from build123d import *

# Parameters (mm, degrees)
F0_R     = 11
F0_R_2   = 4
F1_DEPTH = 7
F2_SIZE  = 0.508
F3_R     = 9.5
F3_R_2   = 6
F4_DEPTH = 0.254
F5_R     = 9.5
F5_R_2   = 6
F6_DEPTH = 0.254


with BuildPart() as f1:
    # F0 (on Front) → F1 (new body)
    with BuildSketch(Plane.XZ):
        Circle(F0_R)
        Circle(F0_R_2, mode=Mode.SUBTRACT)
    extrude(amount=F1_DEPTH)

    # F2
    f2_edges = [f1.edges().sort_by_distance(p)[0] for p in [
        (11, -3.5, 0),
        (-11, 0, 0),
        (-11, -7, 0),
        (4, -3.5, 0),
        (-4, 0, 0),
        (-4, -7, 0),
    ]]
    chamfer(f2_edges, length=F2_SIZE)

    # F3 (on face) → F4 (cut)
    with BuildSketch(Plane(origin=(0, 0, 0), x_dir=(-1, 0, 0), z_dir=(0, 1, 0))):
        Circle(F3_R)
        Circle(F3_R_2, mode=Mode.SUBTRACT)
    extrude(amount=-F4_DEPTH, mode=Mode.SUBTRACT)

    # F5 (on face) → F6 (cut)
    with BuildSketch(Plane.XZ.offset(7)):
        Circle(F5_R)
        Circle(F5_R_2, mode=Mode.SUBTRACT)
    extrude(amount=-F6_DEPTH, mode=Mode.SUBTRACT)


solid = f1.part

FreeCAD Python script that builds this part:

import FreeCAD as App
import Part
import Sketcher

V = App.Vector
Q = App.Units.Quantity

doc = App.newDocument("Part")
params = doc.addObject("Spreadsheet::Sheet", "Params")
for row, (alias, value) in enumerate([
    ("sketch1_diameter", "22 mm"),
    ("sketch1_diameter2", "8 mm"),
    ("pad1_length", "7 mm"),
    ("chamfer_size", "0.508 mm"),
    ("sketch2_diameter", "19 mm"),
    ("sketch2_diameter2", "12 mm"),
    ("pocket1_length", "0.254 mm"),
    ("sketch3_diameter", "19 mm"),
    ("sketch3_diameter2", "12 mm"),
    ("pocket2_length", "0.254 mm"),
], start=1):
    params.set(f"A{row}", alias)
    params.set(f"B{row}", "=" + value)
    params.setAlias(f"B{row}", alias)

body = doc.addObject("PartDesign::Body", "Body")

# Sketch on XZ plane
sketch1 = body.newObject("Sketcher::SketchObject", "Sketch")
sketch1.AttachmentSupport = (doc.getObject("XZ_Plane"), [""])
sketch1.MapMode = "FlatFace"
sketch1.addGeometry(Part.Circle(V(0, 0, 0), V(0, 0, 1), 11), False)
sketch1.addGeometry(Part.Circle(V(0, 0, 0), V(0, 0, 1), 4), False)
sketch1.addConstraint(Sketcher.Constraint("Coincident", 0, 3, -1, 1))
sketch1.addConstraint(Sketcher.Constraint("Coincident", 1, 3, -1, 1))
sketch1.addConstraint(Sketcher.Constraint("Diameter", 0, Q("22 mm")))
sketch1.addConstraint(Sketcher.Constraint("Diameter", 1, Q("8 mm")))
sketch1.setExpression("Constraints[2]", "Params.sketch1_diameter")
sketch1.setExpression("Constraints[3]", "Params.sketch1_diameter2")
pad1 = body.newObject("PartDesign::Pad", "Pad")
pad1.Profile = sketch1
pad1.setExpression("Length", "Params.pad1_length")
doc.recompute()

chamfer = body.newObject("PartDesign::Chamfer", "Chamfer")
chamfer.Base = (pad1, ["Edge1"])
chamfer.UseAllEdges = True
chamfer.setExpression("Size", "Params.chamfer_size")

# Sketch on XZ plane
sketch2 = body.newObject("Sketcher::SketchObject", "Sketch001")
sketch2.AttachmentSupport = (doc.getObject("XZ_Plane"), [""])
sketch2.MapMode = "FlatFace"
sketch2.addGeometry(Part.Circle(V(0, 0, 0), V(0, 0, 1), 10), False)
sketch2.addGeometry(Part.Circle(V(0, 0, 0), V(0, 0, 1), 6), False)
sketch2.addConstraint(Sketcher.Constraint("Coincident", 0, 3, -1, 1))
sketch2.addConstraint(Sketcher.Constraint("Coincident", 1, 3, -1, 1))
sketch2.addConstraint(Sketcher.Constraint("Diameter", 0, Q("19 mm")))
sketch2.addConstraint(Sketcher.Constraint("Diameter", 1, Q("12 mm")))
sketch2.setExpression("Constraints[2]", "Params.sketch2_diameter")
sketch2.setExpression("Constraints[3]", "Params.sketch2_diameter2")
pocket1 = body.newObject("PartDesign::Pocket", "Pocket")
pocket1.Profile = sketch2
pocket1.setExpression("Length", "Params.pocket1_length")
pocket1.Reversed = True

# Sketch on XZ plane
sketch3 = body.newObject("Sketcher::SketchObject", "Sketch002")
sketch3.AttachmentSupport = (doc.getObject("XZ_Plane"), [""])
sketch3.MapMode = "FlatFace"
sketch3.AttachmentOffset = App.Placement(V(0, 0, 7), App.Rotation())
sketch3.addGeometry(Part.Circle(V(0, 0, 0), V(0, 0, 1), 10), False)
sketch3.addGeometry(Part.Circle(V(0, 0, 0), V(0, 0, 1), 6), False)
sketch3.addConstraint(Sketcher.Constraint("Coincident", 0, 3, -1, 1))
sketch3.addConstraint(Sketcher.Constraint("Coincident", 1, 3, -1, 1))
sketch3.addConstraint(Sketcher.Constraint("Diameter", 0, Q("19 mm")))
sketch3.addConstraint(Sketcher.Constraint("Diameter", 1, Q("12 mm")))
sketch3.setExpression("Constraints[2]", "Params.sketch3_diameter")
sketch3.setExpression("Constraints[3]", "Params.sketch3_diameter2")
pocket2 = body.newObject("PartDesign::Pocket", "Pocket001")
pocket2.Profile = sketch3
pocket2.setExpression("Length", "Params.pocket2_length")

doc.recompute()
